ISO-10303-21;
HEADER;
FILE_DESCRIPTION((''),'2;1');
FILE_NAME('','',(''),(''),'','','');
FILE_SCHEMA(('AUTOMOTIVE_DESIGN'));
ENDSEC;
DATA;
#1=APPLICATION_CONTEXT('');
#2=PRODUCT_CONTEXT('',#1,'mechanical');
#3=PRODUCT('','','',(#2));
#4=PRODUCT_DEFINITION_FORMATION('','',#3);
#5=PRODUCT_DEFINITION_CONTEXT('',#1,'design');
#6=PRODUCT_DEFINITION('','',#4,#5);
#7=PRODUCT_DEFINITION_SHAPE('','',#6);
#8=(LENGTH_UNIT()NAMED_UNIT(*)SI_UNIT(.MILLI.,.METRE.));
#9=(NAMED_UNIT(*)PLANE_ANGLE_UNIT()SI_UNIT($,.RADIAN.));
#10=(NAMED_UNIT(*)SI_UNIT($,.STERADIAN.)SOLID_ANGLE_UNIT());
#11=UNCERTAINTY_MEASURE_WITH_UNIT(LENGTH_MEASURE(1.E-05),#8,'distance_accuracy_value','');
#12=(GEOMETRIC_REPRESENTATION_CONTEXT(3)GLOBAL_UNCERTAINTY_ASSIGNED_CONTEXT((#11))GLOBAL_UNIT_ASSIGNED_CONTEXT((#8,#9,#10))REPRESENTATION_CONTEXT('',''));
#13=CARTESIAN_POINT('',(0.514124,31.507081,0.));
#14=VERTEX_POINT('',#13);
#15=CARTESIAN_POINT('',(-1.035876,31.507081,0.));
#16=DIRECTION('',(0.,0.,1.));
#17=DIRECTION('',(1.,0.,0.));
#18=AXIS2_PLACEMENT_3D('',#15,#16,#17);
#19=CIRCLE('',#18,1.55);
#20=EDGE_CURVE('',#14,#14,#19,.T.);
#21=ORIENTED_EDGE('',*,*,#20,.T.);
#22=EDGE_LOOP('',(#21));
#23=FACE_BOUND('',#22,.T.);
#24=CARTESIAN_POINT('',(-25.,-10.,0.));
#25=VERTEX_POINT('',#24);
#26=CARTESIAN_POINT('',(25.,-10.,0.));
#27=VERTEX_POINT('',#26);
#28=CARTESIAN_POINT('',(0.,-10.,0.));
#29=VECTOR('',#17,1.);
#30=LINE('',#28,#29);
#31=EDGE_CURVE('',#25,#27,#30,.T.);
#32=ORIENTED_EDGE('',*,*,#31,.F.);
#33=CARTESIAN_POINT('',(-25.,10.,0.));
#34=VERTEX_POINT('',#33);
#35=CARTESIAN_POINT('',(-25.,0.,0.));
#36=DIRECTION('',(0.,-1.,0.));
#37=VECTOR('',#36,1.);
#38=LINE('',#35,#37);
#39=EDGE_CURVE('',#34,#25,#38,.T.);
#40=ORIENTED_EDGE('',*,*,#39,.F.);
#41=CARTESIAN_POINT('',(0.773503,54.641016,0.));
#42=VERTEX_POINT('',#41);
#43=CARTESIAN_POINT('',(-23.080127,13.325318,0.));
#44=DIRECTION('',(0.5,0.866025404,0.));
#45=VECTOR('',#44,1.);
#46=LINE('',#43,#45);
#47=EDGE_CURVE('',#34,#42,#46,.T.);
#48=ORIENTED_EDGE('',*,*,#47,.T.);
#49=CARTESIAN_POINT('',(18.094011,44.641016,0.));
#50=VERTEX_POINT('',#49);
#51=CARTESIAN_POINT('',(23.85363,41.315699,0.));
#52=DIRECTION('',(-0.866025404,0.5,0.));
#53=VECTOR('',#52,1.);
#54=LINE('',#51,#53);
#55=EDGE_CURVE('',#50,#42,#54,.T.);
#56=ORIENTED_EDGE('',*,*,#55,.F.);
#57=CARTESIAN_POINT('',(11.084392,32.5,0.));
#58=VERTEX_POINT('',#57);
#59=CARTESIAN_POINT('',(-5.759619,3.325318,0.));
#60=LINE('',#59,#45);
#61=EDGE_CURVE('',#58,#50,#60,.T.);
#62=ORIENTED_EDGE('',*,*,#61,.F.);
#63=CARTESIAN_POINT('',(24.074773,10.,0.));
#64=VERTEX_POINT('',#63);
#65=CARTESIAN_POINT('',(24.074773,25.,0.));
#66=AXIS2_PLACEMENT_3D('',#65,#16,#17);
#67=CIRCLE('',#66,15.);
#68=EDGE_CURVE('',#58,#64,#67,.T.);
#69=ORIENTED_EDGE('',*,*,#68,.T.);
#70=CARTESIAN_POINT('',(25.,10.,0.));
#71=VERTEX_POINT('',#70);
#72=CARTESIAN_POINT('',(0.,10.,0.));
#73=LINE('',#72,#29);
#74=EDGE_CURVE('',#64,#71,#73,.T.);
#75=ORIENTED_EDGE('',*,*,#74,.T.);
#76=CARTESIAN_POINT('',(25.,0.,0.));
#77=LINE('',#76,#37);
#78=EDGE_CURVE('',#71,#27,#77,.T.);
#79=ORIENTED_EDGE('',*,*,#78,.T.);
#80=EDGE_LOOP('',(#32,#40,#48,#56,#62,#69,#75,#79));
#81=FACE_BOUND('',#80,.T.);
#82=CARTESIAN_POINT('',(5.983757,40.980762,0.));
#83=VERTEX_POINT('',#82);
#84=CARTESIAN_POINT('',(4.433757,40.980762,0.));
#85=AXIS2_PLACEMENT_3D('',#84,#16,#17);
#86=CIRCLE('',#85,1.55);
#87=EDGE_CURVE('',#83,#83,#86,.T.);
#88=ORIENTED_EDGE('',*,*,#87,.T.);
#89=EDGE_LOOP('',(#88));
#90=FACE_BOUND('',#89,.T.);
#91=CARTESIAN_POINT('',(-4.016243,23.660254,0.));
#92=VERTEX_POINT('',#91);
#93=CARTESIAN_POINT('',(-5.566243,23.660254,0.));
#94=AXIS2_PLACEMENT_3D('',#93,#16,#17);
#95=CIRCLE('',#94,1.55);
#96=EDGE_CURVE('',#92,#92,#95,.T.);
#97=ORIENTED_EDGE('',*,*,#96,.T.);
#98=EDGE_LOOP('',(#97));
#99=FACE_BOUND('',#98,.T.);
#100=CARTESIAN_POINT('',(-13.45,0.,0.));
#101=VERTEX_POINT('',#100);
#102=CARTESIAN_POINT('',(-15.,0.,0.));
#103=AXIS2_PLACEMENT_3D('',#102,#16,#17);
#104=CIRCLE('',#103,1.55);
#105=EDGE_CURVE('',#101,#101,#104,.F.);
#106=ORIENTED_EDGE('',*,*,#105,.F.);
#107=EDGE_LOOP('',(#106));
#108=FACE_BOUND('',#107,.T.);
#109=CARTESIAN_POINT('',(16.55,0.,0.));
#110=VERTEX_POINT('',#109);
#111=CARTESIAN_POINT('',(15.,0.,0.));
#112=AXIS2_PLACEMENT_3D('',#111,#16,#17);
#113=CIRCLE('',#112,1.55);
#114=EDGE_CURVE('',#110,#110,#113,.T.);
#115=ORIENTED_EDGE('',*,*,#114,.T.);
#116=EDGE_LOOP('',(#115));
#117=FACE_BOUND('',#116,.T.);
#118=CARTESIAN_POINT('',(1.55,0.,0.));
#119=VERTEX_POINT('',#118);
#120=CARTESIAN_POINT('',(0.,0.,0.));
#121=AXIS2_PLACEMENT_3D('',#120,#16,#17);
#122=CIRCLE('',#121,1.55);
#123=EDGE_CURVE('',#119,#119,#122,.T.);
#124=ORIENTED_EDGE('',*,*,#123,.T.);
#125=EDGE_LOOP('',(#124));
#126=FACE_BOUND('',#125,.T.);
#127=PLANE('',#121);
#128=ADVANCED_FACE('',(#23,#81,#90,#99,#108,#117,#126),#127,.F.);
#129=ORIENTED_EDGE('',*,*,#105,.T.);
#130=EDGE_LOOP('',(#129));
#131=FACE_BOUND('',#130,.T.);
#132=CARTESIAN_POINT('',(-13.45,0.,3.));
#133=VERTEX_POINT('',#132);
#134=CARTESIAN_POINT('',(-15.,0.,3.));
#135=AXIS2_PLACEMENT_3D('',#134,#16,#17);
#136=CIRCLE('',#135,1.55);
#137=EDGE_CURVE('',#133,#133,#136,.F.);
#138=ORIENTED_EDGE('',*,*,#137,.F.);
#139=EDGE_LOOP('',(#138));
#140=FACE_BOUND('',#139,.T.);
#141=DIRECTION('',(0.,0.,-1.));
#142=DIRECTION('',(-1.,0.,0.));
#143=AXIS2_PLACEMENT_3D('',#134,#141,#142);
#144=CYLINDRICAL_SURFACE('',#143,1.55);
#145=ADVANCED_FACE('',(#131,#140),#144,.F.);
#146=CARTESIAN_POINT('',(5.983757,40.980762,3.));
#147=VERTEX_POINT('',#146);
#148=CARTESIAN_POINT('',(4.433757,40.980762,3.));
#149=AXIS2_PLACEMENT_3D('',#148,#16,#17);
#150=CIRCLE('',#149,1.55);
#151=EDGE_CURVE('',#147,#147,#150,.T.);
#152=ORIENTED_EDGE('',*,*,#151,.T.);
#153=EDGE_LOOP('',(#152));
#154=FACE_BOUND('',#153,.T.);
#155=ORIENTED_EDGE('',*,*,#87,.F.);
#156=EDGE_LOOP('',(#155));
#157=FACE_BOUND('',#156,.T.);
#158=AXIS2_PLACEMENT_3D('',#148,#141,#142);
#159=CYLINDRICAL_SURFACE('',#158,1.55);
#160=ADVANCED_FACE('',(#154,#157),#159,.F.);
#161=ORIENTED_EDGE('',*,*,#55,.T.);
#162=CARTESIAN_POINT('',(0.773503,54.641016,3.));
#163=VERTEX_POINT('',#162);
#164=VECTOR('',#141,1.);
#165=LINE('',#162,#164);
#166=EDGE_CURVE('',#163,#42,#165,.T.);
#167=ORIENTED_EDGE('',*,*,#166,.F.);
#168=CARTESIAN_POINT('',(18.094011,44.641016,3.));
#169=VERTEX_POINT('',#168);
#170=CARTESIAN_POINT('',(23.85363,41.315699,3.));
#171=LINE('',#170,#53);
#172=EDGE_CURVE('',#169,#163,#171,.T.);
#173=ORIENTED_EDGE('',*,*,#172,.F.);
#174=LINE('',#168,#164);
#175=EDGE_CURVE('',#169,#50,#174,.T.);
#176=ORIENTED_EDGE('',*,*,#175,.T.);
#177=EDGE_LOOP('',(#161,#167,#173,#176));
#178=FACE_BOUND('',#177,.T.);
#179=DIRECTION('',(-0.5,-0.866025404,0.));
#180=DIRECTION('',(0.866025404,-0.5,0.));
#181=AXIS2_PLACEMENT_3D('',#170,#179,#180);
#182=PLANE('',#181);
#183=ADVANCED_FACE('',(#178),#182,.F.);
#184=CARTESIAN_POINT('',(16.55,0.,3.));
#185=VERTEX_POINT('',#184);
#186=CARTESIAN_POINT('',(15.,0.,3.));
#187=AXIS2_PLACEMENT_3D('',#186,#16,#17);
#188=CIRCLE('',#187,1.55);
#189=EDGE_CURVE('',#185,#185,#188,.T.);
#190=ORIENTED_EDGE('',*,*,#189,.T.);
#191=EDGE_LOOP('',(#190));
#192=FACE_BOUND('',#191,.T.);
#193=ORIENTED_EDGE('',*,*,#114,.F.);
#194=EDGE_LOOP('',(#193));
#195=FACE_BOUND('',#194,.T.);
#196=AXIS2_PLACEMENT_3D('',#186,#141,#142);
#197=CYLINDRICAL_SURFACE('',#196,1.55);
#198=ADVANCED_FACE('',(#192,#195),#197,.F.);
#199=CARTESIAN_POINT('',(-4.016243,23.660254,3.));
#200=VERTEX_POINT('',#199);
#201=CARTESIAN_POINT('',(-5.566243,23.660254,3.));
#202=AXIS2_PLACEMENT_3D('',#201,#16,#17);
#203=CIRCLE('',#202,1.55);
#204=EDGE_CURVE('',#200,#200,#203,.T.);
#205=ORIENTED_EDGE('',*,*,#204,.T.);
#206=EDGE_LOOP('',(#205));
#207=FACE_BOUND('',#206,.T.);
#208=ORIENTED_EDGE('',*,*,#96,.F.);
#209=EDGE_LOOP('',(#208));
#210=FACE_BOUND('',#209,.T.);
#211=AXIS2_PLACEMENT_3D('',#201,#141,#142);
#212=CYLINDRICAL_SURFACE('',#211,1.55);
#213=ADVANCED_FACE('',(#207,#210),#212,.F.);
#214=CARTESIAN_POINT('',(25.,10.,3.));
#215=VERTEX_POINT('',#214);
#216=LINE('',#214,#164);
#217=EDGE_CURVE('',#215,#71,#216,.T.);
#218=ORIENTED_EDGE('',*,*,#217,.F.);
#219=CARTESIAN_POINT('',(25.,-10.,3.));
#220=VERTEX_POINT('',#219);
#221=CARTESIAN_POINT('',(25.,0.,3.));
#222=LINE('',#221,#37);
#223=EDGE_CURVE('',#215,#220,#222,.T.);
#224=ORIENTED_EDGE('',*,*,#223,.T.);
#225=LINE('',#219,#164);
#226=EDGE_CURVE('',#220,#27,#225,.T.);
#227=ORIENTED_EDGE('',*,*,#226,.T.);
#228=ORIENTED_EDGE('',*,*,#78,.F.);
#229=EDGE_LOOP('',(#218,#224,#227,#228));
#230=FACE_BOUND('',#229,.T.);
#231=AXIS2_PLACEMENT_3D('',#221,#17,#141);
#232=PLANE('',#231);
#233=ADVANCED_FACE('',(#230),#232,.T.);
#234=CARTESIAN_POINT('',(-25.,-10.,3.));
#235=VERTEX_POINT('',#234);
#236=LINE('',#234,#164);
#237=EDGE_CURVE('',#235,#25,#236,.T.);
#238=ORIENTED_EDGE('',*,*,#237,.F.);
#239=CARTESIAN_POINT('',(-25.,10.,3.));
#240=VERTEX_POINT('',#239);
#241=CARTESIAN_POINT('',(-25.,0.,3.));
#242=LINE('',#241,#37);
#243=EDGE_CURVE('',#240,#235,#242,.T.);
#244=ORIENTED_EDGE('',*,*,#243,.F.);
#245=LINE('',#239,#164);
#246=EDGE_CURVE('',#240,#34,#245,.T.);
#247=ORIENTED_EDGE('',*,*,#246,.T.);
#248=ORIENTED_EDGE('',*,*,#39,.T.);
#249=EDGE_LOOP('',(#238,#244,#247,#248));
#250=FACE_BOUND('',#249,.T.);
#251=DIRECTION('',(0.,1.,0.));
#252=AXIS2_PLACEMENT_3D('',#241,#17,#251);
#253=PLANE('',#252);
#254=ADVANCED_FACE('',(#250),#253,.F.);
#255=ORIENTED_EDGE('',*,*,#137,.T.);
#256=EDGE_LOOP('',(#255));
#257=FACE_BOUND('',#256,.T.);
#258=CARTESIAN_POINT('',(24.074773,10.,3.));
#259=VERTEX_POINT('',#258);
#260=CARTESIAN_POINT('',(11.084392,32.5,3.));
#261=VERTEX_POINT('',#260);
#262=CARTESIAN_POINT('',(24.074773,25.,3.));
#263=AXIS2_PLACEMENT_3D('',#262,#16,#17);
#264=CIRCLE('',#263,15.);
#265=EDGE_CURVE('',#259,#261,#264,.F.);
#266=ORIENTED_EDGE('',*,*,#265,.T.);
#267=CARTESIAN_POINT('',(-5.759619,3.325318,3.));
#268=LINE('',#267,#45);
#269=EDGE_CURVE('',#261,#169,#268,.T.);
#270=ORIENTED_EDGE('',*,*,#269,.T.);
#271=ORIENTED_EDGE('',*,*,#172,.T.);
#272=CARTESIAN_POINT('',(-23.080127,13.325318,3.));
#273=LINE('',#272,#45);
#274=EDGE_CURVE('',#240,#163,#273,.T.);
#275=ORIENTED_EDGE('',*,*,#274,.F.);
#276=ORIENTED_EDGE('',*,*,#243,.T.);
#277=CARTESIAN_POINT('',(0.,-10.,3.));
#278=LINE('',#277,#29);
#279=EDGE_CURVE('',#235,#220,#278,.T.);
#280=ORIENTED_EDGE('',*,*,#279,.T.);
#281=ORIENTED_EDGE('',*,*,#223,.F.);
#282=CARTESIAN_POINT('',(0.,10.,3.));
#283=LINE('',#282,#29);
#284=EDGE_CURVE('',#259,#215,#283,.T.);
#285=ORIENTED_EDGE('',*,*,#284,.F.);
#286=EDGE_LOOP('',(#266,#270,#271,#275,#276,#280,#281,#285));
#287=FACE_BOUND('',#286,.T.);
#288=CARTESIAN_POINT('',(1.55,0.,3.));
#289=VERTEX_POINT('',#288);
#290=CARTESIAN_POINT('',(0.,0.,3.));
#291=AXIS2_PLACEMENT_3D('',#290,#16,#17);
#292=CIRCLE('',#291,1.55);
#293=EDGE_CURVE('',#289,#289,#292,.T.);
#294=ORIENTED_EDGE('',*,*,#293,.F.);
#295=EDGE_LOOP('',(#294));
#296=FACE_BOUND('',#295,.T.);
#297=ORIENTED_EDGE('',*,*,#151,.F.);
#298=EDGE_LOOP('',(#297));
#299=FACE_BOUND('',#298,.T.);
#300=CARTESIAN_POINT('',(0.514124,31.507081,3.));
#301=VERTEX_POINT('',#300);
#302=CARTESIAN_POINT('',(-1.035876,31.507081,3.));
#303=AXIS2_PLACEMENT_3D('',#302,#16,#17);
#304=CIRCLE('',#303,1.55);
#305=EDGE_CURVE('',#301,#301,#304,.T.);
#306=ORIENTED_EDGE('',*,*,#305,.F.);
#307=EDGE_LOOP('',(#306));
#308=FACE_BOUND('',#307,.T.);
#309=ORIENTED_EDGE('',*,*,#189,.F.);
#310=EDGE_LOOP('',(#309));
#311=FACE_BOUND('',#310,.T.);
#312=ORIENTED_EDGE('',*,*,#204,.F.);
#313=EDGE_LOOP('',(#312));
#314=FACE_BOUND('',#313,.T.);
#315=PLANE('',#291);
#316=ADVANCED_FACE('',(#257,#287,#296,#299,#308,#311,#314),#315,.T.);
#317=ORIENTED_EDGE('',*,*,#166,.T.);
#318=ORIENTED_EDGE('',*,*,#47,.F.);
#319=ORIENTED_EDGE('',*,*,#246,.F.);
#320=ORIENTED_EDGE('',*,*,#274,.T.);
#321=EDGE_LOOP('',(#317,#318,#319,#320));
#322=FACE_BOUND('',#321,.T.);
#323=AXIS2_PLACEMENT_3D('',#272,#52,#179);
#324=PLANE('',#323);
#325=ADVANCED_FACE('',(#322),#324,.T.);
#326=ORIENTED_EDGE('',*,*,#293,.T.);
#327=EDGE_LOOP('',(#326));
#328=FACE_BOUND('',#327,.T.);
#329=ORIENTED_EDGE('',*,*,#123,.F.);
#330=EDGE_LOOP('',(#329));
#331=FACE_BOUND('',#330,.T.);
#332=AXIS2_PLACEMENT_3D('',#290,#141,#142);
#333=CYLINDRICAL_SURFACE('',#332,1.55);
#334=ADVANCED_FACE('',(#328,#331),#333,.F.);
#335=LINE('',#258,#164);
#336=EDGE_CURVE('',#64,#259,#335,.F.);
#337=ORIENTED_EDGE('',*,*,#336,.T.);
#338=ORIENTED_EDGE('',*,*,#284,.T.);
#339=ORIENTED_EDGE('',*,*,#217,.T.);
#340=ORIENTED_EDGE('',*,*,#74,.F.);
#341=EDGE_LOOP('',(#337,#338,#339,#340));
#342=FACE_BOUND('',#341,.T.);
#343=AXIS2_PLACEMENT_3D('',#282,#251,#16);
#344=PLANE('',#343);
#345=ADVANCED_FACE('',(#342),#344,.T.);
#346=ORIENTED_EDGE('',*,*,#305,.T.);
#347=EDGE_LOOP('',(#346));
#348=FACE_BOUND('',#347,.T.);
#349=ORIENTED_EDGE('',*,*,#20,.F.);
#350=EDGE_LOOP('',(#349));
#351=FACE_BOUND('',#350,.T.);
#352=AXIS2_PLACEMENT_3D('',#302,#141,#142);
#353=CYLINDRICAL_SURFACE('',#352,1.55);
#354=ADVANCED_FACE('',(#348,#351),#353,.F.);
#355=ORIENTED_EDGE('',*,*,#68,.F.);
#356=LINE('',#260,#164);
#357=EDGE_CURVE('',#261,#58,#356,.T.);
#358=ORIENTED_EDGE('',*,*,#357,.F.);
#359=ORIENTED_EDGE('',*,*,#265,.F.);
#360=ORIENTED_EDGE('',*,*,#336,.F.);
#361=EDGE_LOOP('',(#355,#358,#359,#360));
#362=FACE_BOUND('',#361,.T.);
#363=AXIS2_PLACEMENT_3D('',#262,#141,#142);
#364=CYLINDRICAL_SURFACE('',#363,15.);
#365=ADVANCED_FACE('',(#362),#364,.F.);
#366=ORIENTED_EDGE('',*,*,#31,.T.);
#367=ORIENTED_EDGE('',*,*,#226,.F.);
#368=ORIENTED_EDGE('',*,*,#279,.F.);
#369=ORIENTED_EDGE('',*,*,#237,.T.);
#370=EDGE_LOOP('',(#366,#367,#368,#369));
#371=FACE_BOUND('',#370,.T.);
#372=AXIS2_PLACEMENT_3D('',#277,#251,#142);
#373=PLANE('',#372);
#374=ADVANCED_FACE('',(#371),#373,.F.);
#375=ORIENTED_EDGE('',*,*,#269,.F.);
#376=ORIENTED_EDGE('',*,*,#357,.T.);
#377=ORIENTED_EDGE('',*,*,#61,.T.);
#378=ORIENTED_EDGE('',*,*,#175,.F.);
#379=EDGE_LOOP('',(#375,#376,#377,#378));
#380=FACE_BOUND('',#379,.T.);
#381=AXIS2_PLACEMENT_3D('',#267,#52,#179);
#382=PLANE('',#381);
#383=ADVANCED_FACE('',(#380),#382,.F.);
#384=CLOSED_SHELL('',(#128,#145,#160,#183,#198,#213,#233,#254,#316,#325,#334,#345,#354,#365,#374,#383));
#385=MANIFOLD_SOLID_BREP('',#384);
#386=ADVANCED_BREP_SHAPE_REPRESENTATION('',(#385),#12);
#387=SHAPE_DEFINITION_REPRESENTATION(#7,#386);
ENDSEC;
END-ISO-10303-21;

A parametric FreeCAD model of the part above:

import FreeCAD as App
import Part
import Sketcher
Q = App.Units.Quantity


def edges_at(feature, points):
    """Names of the edges that pass closest to the given points."""
    edges = feature.Shape.Edges
    near = lambda p: min(range(len(edges)), key=lambda i: edges[i].distToShape(Part.Vertex(*p))[0])
    return sorted({f"Edge{near(p) + 1}" for p in points})

doc = App.newDocument("Part")
params = doc.addObject("Spreadsheet::Sheet", "Params")
for row, (alias, value) in enumerate([
    ("sketch1_diameter", "3.1 mm"),
    ("sketch1_width", "50 mm"),
    ("sketch1_height", "20 mm"),
    ("sketch1_length", "40 mm"),
    ("sketch1_length2", "20 mm"),
    ("pad1_length", "3 mm"),
    ("fillet_radius", "15 mm"),
], start=1):
    params.set(f"A{row}", alias)
    params.set(f"B{row}", "=" + value)
    params.setAlias(f"B{row}", alias)

body = doc.addObject("PartDesign::Body", "Body")

sketch1 = doc.addObject("Sketcher::SketchObject", "Sketch")
body.addObject(sketch1)
sketch1.AttachmentSupport = (doc.XY_Plane, [""])
sketch1.MapMode = "FlatFace"
sketch1.addGeometry([
    Part.LineSegment(App.Vector(0.773503, 54.641016, 0), App.Vector(-25, 10, 0)),
    Part.LineSegment(App.Vector(-25, 10, 0), App.Vector(-25, -10, 0)),
    Part.LineSegment(App.Vector(-25, -10, 0), App.Vector(25, -10, 0)),
    Part.LineSegment(App.Vector(25, -10, 0), App.Vector(25, 10, 0)),
    Part.LineSegment(App.Vector(25, 10, 0), App.Vector(-1.905989, 10, 0)),
    Part.LineSegment(App.Vector(-1.905989, 10, 0), App.Vector(18.094011, 44.641016, 0)),
    Part.LineSegment(App.Vector(18.094011, 44.641016, 0), App.Vector(0.773503, 54.641016, 0)),
    Part.Circle(App.Vector(-15, 0, 0), App.Vector(0, 0, 1), 1.55),
    Part.Circle(App.Vector(0, 0, 0), App.Vector(0, 0, 1), 1.55),
    Part.Circle(App.Vector(15, 0, 0), App.Vector(0, 0, 1), 1.55),
    Part.Circle(App.Vector(-5.566243, 23.660254, 0), App.Vector(0, 0, 1), 1.55),
    Part.Circle(App.Vector(-1.035876, 31.507081, 0), App.Vector(0, 0, 1), 1.55),
    Part.Circle(App.Vector(4.433757, 40.980762, 0), App.Vector(0, 0, 1), 1.55),
], False)
sketch1.addConstraint([
    Sketcher.Constraint("Coincident", 0, 2, 1, 1),
    Sketcher.Constraint("Coincident", 1, 2, 2, 1),
    Sketcher.Constraint("Coincident", 2, 2, 3, 1),
    Sketcher.Constraint("Coincident", 3, 2, 4, 1),
    Sketcher.Constraint("Coincident", 4, 2, 5, 1),
    Sketcher.Constraint("Coincident", 5, 2, 6, 1),
    Sketcher.Constraint("Coincident", 6, 2, 0, 1),
    Sketcher.Constraint("Vertical", 1),
    Sketcher.Constraint("Horizontal", 2),
    Sketcher.Constraint("Vertical", 3),
    Sketcher.Constraint("Horizontal", 4),
    Sketcher.Constraint("Coincident", 8, 3, -1, 1),
    Sketcher.Constraint("Equal", 7, 8),
    Sketcher.Constraint("Equal", 8, 9),
    Sketcher.Constraint("Equal", 9, 10),
    Sketcher.Constraint("Equal", 10, 11),
    Sketcher.Constraint("Equal", 11, 12),
    Sketcher.Constraint("Symmetric", 7, 3, 9, 3, -1, 1),
    Sketcher.Constraint("Symmetric", 0, 2, 2, 2, -1, 1),
    Sketcher.Constraint("PointOnObject", 7, 3, -1),
    Sketcher.Constraint("Parallel", 0, 5),
    Sketcher.Constraint("Perpendicular", 5, 6),
    Sketcher.Constraint("Horizontal", 0, 2, 3, 2),
    Sketcher.Constraint("Diameter", 7, Q("3.1 mm")),
    Sketcher.Constraint("DistanceX", 2, 1, 2, 2, Q("50 mm")),
    Sketcher.Constraint("DistanceY", 1, 2, 1, 1, Q("20 mm")),
    Sketcher.Constraint("Angle", 0, Q("-120 deg")),
    Sketcher.Constraint("Distance", 5, Q("40 mm")),
    Sketcher.Constraint("Distance", 6, Q("20 mm")),
    Sketcher.Constraint("DistanceX", 7, 3, -1, 1, Q("15 mm")),
    Sketcher.Constraint("DistanceX", 10, 3, 12, 3, Q("10 mm")),
    Sketcher.Constraint("DistanceY", -1, 1, 11, 3, Q("31.507081 mm")),
    Sketcher.Constraint("DistanceY", 11, 3, 12, 3, Q("9.473681 mm")),
    Sketcher.Constraint("DistanceY", 10, 3, 12, 3, Q("17.320508 mm")),
    Sketcher.Constraint("DistanceX", 11, 3, 6, 2, Q("1.809378 mm")),
    Sketcher.Constraint("DistanceX", 10, 3, -1, 1, Q("5.566243 mm")),
])
sketch1.setExpression("Constraints[23]", "Params.sketch1_diameter")
sketch1.setExpression("Constraints[24]", "Params.sketch1_width")
sketch1.setExpression("Constraints[25]", "Params.sketch1_height")
sketch1.setExpression("Constraints[27]", "Params.sketch1_length")
sketch1.setExpression("Constraints[28]", "Params.sketch1_length2")
pad1 = doc.addObject("PartDesign::Pad", "Pad")
body.addObject(pad1)
pad1.Profile = sketch1
pad1.setExpression("Length", "Params.pad1_length")
doc.recompute()

fillet = doc.addObject("PartDesign::Fillet", "Fillet")
body.addObject(fillet)
fillet.Base = (pad1, edges_at(pad1, [(-1.906, 10, 1.5)]))
fillet.setExpression("Radius", "Params.fillet_radius")

doc.recompute()
